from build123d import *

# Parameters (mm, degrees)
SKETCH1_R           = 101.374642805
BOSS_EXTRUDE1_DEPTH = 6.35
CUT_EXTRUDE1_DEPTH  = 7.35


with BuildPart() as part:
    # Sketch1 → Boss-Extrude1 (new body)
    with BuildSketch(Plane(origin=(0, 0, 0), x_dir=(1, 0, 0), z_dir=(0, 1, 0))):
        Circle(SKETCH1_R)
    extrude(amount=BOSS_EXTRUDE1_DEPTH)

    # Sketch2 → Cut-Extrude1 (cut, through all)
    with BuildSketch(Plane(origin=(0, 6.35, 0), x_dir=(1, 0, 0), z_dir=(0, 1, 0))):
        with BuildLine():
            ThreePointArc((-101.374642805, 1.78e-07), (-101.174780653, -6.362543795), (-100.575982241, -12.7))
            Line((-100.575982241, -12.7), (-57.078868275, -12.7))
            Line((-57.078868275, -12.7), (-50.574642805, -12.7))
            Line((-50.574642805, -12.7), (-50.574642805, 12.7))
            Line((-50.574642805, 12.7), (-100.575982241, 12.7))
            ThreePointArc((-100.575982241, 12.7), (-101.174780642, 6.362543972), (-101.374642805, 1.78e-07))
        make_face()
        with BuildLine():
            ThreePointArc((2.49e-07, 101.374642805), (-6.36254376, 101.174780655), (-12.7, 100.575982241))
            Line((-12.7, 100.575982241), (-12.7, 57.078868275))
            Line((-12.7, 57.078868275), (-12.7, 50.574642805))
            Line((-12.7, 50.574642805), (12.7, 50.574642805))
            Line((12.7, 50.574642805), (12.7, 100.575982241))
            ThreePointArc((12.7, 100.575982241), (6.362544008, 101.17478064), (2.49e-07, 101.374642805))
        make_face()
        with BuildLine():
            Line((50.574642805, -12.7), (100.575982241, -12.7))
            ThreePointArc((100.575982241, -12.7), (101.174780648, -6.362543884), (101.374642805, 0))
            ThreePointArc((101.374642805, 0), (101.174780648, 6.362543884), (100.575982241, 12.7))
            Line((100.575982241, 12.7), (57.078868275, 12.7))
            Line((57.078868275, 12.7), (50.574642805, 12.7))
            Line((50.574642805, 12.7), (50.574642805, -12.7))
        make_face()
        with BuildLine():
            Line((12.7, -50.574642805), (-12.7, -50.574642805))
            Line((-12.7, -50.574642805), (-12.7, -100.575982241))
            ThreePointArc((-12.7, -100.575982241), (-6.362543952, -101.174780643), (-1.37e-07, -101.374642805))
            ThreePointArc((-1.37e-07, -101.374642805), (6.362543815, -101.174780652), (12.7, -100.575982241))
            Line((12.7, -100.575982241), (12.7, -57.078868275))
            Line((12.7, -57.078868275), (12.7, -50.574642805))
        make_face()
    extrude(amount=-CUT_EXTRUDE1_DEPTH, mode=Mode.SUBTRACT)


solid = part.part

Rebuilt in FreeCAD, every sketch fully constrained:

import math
import FreeCAD as App
import Part
import Sketcher
from FreeCAD import Vector
Q = App.Units.Quantity

doc = App.newDocument("Part")
body = doc.addObject("PartDesign::Body", "Body")

sketch1 = body.newObject("Sketcher::SketchObject", "Sketch")
sketch1.AttachmentSupport = (doc.getObject("XZ_Plane"), [""])
sketch1.MapMode = "FlatFace"
sketch1.addGeometry(Part.Circle(Vector(0, 0, 0), Vector(0, 0, 1), 101), False)
sketch1.addConstraint([
    Sketcher.Constraint("Coincident", 0, 3, -1, 1),
    Sketcher.Constraint("Diameter", 0, Q("202.749286 mm")),
])
pad1 = body.newObject("PartDesign::Pad", "Pad")
pad1.Profile = sketch1
pad1.Length = Q("0.25 in")
pad1.Reversed = True

sketch2 = body.newObject("Sketcher::SketchObject", "Sketch001")
sketch2.AttachmentSupport = (doc.getObject("XZ_Plane"), [""])
sketch2.MapMode = "FlatFace"
sketch2.AttachmentOffset = App.Placement(Vector(0, 0, -0.25 * 25.4), App.Rotation())
sketch2.addGeometry([
    Part.ArcOfCircle(Part.Circle(Vector(0, 0, 0), Vector(0, 0, 1), 101), math.radians(172.8), math.radians(180)),
    Part.LineSegment(Vector(-101, 13, 0), Vector(-51, 13, 0)),
    Part.LineSegment(Vector(-51, 13, 0), Vector(-51, -13, 0)),
    Part.LineSegment(Vector(-51, -13, 0), Vector(-101, -13, 0)),
    Part.ArcOfCircle(Part.Circle(Vector(0, 0, 0), Vector(0, 0, 1), 101), math.radians(-180), math.radians(-172.8)),
    Part.ArcOfCircle(Part.Circle(Vector(0, 0, 0), Vector(0, 0, 1), 101), math.radians(-97.2), math.radians(-90)),
    Part.LineSegment(Vector(-13, -101, 0), Vector(-13, -51, 0)),
    Part.LineSegment(Vector(-13, -51, 0), Vector(13, -51, 0)),
    Part.LineSegment(Vector(13, -51, 0), Vector(13, -101, 0)),
    Part.ArcOfCircle(Part.Circle(Vector(0, 0, 0), Vector(0, 0, 1), 101), math.radians(-90), math.radians(-82.8)),
    Part.LineSegment(Vector(51, 13, 0), Vector(101, 13, 0)),
    Part.ArcOfCircle(Part.Circle(Vector(0, 0, 0), Vector(0, 0, 1), 101), math.radians(0), math.radians(7.2)),
    Part.ArcOfCircle(Part.Circle(Vector(0, 0, 0), Vector(0, 0, 1), 101), math.radians(-7.2), math.radians(0)),
    Part.LineSegment(Vector(101, -13, 0), Vector(51, -13, 0)),
    Part.LineSegment(Vector(51, -13, 0), Vector(51, 13, 0)),
    Part.LineSegment(Vector(13, 51, 0), Vector(-13, 51, 0)),
    Part.LineSegment(Vector(-13, 51, 0), Vector(-13, 101, 0)),
    Part.ArcOfCircle(Part.Circle(Vector(0, 0, 0), Vector(0, 0, 1), 101), math.radians(90), math.radians(97.2)),
    Part.ArcOfCircle(Part.Circle(Vector(0, 0, 0), Vector(0, 0, 1), 101), math.radians(82.8), math.radians(90)),
    Part.LineSegment(Vector(13, 101, 0), Vector(13, 51, 0)),
], False)
sketch2.addConstraint([
    Sketcher.Constraint("Coincident", 0, 1, 1, 1),
    Sketcher.Constraint("Coincident", 1, 2, 2, 1),
    Sketcher.Constraint("Coincident", 2, 2, 3, 1),
    Sketcher.Constraint("Coincident", 3, 2, 4, 2),
    Sketcher.Constraint("Tangent", 4, 1, 0, 2),
    Sketcher.Constraint("Coincident", 5, 1, 6, 1),
    Sketcher.Constraint("Coincident", 6, 2, 7, 1),
    Sketcher.Constraint("Coincident", 7, 2, 8, 1),
    Sketcher.Constraint("Coincident", 8, 2, 9, 2),
    Sketcher.Constraint("Tangent", 9, 1, 5, 2),
    Sketcher.Constraint("Coincident", 10, 2, 11, 2),
    Sketcher.Constraint("Tangent", 11, 1, 12, 2),
    Sketcher.Constraint("Coincident", 12, 1, 13, 1),
    Sketcher.Constraint("Coincident", 13, 2, 14, 1),
    Sketcher.Constraint("Coincident", 14, 2, 10, 1),
    Sketcher.Constraint("Coincident", 15, 2, 16, 1),
    Sketcher.Constraint("Coincident", 16, 2, 17, 2),
    Sketcher.Constraint("Tangent", 17, 1, 18, 2),
    Sketcher.Constraint("Coincident", 18, 1, 19, 1),
    Sketcher.Constraint("Coincident", 19, 2, 15, 1),
    Sketcher.Constraint("Horizontal", 1),
    Sketcher.Constraint("Vertical", 2),
    Sketcher.Constraint("Horizontal", 3),
    Sketcher.Constraint("Vertical", 6),
    Sketcher.Constraint("Horizontal", 7),
    Sketcher.Constraint("Vertical", 8),
    Sketcher.Constraint("Horizontal", 10),
    Sketcher.Constraint("Horizontal", 13),
    Sketcher.Constraint("Vertical", 14),
    Sketcher.Constraint("Horizontal", 15),
    Sketcher.Constraint("Vertical", 16),
    Sketcher.Constraint("Vertical", 19),
    Sketcher.Constraint("Coincident", 0, 3, -1, 1),
    Sketcher.Constraint("Coincident", 5, 3, -1, 1),
    Sketcher.Constraint("Coincident", 11, 3, -1, 1),
    Sketcher.Constraint("Coincident", 17, 3, -1, 1),
    Sketcher.Constraint("Equal", 0, 4),
    Sketcher.Constraint("Equal", 4, 5),
    Sketcher.Constraint("Equal", 5, 9),
    Sketcher.Constraint("Equal", 9, 11),
    Sketcher.Constraint("Equal", 11, 12),
    Sketcher.Constraint("Equal", 12, 17),
    Sketcher.Constraint("Equal", 17, 18),
    Sketcher.Constraint("Symmetric", 1, 2, 13, 2, -1, 1),
    Sketcher.Constraint("Symmetric", 7, 2, 15, 2, -1, 1),
    Sketcher.Constraint("PointOnObject", 4, 1, -1),
    Sketcher.Constraint("PointOnObject", 9, 1, -2),
    Sketcher.Constraint("PointOnObject", 11, 1, -1),
    Sketcher.Constraint("PointOnObject", 17, 1, -2),
    Sketcher.Constraint("Horizontal", 5, 1, 8, 2),
    Sketcher.Constraint("Horizontal", 1, 2, 10, 2),
    Sketcher.Constraint("Horizontal", 3, 2, 12, 1),
    Sketcher.Constraint("Horizontal", 16, 2, 18, 1),
    Sketcher.Constraint("Equal", 15, 2),
    Sketcher.Constraint("Equal", 13, 6),
    Sketcher.Constraint("DistanceX", 7, 1, 7, 2, Q("1 in")),
    Sketcher.Constraint("DistanceX", 4, 1, 2, 2, Q("2 in")),
    Sketcher.Constraint("Radius", 0, Q("101.374643 mm")),
])
pocket1 = body.newObject("PartDesign::Pocket", "Pocket")
pocket1.Profile = sketch2
pocket1.Type = "ThroughAll"
pocket1.Reversed = True

doc.recompute()
